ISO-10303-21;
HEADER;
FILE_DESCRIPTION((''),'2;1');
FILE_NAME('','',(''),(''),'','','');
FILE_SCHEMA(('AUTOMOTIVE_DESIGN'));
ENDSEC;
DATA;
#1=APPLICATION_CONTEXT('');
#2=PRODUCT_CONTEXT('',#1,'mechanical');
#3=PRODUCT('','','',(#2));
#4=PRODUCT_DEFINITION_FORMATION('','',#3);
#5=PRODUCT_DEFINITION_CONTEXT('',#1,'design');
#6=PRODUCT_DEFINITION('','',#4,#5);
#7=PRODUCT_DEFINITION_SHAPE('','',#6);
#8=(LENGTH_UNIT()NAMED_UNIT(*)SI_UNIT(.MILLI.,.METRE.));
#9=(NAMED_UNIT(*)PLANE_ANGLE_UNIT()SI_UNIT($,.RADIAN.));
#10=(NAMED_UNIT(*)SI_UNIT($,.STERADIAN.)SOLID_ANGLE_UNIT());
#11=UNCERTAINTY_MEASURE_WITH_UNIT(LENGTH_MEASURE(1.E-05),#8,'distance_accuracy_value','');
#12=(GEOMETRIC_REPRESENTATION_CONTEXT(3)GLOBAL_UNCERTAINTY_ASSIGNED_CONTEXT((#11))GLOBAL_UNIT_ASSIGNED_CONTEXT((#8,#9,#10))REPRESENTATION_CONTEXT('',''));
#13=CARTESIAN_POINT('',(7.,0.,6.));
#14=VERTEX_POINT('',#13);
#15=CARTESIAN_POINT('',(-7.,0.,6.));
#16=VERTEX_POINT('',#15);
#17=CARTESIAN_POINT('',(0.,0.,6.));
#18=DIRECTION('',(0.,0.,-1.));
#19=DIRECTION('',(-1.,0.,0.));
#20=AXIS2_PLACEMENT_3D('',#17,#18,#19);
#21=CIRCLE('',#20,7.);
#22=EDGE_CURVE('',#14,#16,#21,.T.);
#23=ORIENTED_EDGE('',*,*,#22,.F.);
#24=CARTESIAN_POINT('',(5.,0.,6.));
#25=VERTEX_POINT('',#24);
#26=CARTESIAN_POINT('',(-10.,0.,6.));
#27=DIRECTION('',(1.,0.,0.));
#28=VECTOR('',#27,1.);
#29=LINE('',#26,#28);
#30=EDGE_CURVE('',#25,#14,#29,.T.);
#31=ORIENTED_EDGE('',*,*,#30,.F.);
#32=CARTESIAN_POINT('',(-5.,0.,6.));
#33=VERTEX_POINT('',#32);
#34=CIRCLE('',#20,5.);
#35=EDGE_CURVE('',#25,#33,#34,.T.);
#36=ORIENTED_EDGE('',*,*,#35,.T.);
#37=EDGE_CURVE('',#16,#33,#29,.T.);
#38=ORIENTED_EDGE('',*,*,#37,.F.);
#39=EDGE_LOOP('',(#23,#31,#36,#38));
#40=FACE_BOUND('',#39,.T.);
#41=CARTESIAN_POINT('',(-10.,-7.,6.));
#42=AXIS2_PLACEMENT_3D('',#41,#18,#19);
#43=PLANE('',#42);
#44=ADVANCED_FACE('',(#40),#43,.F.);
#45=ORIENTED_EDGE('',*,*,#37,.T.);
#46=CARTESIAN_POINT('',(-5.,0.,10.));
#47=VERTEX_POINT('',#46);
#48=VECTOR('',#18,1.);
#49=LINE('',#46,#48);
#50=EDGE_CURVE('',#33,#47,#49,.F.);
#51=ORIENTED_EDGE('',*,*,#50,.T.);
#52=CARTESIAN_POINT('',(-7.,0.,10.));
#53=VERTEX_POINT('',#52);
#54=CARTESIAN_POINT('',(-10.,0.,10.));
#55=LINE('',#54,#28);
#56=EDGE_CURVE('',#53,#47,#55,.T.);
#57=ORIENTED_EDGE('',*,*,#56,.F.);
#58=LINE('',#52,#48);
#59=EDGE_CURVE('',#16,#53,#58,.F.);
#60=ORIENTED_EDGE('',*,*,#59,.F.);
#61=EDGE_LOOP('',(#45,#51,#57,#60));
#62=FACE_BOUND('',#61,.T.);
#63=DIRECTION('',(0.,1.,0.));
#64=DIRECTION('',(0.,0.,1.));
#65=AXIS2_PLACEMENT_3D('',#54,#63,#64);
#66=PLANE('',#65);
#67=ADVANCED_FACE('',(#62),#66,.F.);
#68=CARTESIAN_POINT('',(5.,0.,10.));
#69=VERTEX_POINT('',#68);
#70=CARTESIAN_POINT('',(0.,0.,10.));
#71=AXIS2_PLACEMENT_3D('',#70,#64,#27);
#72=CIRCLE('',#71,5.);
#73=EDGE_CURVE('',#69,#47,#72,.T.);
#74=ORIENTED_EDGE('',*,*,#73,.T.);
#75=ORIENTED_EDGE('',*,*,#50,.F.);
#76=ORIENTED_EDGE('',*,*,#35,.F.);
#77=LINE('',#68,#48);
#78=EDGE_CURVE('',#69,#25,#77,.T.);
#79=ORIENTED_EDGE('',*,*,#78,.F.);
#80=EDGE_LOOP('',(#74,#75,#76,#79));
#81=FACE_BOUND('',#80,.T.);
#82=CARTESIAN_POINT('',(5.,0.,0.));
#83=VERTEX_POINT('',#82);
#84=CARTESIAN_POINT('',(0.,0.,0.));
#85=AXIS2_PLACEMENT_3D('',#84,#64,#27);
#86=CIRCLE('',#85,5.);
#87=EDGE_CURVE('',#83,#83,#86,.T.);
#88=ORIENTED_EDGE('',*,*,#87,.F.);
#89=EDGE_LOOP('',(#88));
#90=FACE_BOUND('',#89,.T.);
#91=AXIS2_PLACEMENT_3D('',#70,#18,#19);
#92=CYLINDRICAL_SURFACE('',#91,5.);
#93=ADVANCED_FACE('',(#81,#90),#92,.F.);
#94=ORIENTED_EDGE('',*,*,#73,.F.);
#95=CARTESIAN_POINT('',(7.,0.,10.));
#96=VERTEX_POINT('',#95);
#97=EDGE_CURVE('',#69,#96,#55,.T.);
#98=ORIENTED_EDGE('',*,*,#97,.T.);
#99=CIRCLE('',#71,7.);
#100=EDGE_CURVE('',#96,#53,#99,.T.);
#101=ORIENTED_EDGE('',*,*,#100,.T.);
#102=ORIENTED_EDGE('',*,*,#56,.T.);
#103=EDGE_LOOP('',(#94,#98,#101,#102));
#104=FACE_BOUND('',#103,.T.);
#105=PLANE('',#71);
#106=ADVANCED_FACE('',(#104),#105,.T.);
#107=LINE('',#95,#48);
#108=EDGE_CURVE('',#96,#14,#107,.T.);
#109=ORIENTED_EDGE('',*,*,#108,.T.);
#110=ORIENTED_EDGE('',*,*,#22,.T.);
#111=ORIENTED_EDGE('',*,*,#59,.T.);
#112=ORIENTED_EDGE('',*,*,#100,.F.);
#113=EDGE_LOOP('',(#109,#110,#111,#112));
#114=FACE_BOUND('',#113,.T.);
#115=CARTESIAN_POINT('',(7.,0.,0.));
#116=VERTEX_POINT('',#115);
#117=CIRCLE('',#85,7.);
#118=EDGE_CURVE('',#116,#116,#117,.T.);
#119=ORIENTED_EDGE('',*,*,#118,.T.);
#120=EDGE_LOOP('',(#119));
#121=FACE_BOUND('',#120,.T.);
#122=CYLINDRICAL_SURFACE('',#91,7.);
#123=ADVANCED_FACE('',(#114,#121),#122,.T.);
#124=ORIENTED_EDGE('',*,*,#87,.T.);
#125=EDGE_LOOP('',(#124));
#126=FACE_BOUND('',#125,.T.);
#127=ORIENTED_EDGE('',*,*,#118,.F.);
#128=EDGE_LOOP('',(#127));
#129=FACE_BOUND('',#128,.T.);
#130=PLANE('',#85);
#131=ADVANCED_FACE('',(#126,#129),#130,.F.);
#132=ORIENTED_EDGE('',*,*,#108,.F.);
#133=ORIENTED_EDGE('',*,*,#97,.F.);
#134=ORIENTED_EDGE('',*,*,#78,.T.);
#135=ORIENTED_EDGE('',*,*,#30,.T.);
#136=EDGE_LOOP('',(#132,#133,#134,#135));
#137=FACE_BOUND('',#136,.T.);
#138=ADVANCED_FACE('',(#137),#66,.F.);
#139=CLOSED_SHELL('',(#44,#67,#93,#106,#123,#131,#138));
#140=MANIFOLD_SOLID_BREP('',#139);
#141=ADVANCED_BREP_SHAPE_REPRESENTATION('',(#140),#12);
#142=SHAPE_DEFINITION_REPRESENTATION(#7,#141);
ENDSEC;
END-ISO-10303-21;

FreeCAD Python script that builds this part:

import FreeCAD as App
import Part
import Sketcher

doc = App.newDocument("Part")
body = doc.addObject("PartDesign::Body", "Body")

# Sketch on XY plane
sketch1 = doc.addObject("Sketcher::SketchObject", "Sketch")
body.addObject(sketch1)
sketch1.AttachmentSupport = (doc.XY_Plane, [""])
sketch1.MapMode = "FlatFace"
sketch1.addGeometry(Part.Circle(App.Vector(0, 0, 0), App.Vector(0, 0, 1), 7), False)
sketch1.addGeometry(Part.Circle(App.Vector(0, 0, 0), App.Vector(0, 0, 1), 5), False)
sketch1.addConstraint(Sketcher.Constraint("Coincident", 0, 3, -1, 1))
sketch1.addConstraint(Sketcher.Constraint("Coincident", 1, 3, -1, 1))
sketch1.addConstraint(Sketcher.Constraint("Diameter", 0, 14.0))
sketch1.addConstraint(Sketcher.Constraint("Diameter", 1, 10.0))
pad1 = doc.addObject("PartDesign::Pad", "Pad")
body.addObject(pad1)
pad1.Profile = sketch1
pad1.Length = 10

# Sketch on YZ plane
sketch2 = doc.addObject("Sketcher::SketchObject", "Sketch001")
body.addObject(sketch2)
sketch2.AttachmentSupport = (doc.YZ_Plane, [""])
sketch2.MapMode = "FlatFace"
sketch2.addGeometry(Part.LineSegment(App.Vector(0, 10, 0), App.Vector(-7, 10, 0)), False)
sketch2.addGeometry(Part.LineSegment(App.Vector(-7, 10, 0), App.Vector(-7, 6, 0)), False)
sketch2.addGeometry(Part.LineSegment(App.Vector(-7, 6, 0), App.Vector(0, 6, 0)), False)
sketch2.addGeometry(Part.LineSegment(App.Vector(0, 6, 0), App.Vector(0, 10, 0)), False)
sketch2.addConstraint(Sketcher.Constraint("Coincident", 0, 2, 1, 1))
sketch2.addConstraint(Sketcher.Constraint("Coincident", 1, 2, 2, 1))
sketch2.addConstraint(Sketcher.Constraint("Coincident", 2, 2, 3, 1))
sketch2.addConstraint(Sketcher.Constraint("Coincident", 3, 2, 0, 1))
sketch2.addConstraint(Sketcher.Constraint("Horizontal", 0))
sketch2.addConstraint(Sketcher.Constraint("Vertical", 1))
sketch2.addConstraint(Sketcher.Constraint("Horizontal", 2))
sketch2.addConstraint(Sketcher.Constraint("Vertical", 3))
sketch2.addConstraint(Sketcher.Constraint("PointOnObject", 2, 2, -2))
sketch2.addConstraint(Sketcher.Constraint("DistanceX", 0, 2, 0, 1, 7.0))
sketch2.addConstraint(Sketcher.Constraint("DistanceY", 1, 2, 1, 1, 4.0))
sketch2.addConstraint(Sketcher.Constraint("DistanceY", -1, 1, 0, 2, 10.0))
pocket1 = doc.addObject("PartDesign::Pocket", "Pocket")
body.addObject(pocket1)
pocket1.Profile = sketch2
pocket1.Length = 20
pocket1.Midplane = True

doc.recompute()
